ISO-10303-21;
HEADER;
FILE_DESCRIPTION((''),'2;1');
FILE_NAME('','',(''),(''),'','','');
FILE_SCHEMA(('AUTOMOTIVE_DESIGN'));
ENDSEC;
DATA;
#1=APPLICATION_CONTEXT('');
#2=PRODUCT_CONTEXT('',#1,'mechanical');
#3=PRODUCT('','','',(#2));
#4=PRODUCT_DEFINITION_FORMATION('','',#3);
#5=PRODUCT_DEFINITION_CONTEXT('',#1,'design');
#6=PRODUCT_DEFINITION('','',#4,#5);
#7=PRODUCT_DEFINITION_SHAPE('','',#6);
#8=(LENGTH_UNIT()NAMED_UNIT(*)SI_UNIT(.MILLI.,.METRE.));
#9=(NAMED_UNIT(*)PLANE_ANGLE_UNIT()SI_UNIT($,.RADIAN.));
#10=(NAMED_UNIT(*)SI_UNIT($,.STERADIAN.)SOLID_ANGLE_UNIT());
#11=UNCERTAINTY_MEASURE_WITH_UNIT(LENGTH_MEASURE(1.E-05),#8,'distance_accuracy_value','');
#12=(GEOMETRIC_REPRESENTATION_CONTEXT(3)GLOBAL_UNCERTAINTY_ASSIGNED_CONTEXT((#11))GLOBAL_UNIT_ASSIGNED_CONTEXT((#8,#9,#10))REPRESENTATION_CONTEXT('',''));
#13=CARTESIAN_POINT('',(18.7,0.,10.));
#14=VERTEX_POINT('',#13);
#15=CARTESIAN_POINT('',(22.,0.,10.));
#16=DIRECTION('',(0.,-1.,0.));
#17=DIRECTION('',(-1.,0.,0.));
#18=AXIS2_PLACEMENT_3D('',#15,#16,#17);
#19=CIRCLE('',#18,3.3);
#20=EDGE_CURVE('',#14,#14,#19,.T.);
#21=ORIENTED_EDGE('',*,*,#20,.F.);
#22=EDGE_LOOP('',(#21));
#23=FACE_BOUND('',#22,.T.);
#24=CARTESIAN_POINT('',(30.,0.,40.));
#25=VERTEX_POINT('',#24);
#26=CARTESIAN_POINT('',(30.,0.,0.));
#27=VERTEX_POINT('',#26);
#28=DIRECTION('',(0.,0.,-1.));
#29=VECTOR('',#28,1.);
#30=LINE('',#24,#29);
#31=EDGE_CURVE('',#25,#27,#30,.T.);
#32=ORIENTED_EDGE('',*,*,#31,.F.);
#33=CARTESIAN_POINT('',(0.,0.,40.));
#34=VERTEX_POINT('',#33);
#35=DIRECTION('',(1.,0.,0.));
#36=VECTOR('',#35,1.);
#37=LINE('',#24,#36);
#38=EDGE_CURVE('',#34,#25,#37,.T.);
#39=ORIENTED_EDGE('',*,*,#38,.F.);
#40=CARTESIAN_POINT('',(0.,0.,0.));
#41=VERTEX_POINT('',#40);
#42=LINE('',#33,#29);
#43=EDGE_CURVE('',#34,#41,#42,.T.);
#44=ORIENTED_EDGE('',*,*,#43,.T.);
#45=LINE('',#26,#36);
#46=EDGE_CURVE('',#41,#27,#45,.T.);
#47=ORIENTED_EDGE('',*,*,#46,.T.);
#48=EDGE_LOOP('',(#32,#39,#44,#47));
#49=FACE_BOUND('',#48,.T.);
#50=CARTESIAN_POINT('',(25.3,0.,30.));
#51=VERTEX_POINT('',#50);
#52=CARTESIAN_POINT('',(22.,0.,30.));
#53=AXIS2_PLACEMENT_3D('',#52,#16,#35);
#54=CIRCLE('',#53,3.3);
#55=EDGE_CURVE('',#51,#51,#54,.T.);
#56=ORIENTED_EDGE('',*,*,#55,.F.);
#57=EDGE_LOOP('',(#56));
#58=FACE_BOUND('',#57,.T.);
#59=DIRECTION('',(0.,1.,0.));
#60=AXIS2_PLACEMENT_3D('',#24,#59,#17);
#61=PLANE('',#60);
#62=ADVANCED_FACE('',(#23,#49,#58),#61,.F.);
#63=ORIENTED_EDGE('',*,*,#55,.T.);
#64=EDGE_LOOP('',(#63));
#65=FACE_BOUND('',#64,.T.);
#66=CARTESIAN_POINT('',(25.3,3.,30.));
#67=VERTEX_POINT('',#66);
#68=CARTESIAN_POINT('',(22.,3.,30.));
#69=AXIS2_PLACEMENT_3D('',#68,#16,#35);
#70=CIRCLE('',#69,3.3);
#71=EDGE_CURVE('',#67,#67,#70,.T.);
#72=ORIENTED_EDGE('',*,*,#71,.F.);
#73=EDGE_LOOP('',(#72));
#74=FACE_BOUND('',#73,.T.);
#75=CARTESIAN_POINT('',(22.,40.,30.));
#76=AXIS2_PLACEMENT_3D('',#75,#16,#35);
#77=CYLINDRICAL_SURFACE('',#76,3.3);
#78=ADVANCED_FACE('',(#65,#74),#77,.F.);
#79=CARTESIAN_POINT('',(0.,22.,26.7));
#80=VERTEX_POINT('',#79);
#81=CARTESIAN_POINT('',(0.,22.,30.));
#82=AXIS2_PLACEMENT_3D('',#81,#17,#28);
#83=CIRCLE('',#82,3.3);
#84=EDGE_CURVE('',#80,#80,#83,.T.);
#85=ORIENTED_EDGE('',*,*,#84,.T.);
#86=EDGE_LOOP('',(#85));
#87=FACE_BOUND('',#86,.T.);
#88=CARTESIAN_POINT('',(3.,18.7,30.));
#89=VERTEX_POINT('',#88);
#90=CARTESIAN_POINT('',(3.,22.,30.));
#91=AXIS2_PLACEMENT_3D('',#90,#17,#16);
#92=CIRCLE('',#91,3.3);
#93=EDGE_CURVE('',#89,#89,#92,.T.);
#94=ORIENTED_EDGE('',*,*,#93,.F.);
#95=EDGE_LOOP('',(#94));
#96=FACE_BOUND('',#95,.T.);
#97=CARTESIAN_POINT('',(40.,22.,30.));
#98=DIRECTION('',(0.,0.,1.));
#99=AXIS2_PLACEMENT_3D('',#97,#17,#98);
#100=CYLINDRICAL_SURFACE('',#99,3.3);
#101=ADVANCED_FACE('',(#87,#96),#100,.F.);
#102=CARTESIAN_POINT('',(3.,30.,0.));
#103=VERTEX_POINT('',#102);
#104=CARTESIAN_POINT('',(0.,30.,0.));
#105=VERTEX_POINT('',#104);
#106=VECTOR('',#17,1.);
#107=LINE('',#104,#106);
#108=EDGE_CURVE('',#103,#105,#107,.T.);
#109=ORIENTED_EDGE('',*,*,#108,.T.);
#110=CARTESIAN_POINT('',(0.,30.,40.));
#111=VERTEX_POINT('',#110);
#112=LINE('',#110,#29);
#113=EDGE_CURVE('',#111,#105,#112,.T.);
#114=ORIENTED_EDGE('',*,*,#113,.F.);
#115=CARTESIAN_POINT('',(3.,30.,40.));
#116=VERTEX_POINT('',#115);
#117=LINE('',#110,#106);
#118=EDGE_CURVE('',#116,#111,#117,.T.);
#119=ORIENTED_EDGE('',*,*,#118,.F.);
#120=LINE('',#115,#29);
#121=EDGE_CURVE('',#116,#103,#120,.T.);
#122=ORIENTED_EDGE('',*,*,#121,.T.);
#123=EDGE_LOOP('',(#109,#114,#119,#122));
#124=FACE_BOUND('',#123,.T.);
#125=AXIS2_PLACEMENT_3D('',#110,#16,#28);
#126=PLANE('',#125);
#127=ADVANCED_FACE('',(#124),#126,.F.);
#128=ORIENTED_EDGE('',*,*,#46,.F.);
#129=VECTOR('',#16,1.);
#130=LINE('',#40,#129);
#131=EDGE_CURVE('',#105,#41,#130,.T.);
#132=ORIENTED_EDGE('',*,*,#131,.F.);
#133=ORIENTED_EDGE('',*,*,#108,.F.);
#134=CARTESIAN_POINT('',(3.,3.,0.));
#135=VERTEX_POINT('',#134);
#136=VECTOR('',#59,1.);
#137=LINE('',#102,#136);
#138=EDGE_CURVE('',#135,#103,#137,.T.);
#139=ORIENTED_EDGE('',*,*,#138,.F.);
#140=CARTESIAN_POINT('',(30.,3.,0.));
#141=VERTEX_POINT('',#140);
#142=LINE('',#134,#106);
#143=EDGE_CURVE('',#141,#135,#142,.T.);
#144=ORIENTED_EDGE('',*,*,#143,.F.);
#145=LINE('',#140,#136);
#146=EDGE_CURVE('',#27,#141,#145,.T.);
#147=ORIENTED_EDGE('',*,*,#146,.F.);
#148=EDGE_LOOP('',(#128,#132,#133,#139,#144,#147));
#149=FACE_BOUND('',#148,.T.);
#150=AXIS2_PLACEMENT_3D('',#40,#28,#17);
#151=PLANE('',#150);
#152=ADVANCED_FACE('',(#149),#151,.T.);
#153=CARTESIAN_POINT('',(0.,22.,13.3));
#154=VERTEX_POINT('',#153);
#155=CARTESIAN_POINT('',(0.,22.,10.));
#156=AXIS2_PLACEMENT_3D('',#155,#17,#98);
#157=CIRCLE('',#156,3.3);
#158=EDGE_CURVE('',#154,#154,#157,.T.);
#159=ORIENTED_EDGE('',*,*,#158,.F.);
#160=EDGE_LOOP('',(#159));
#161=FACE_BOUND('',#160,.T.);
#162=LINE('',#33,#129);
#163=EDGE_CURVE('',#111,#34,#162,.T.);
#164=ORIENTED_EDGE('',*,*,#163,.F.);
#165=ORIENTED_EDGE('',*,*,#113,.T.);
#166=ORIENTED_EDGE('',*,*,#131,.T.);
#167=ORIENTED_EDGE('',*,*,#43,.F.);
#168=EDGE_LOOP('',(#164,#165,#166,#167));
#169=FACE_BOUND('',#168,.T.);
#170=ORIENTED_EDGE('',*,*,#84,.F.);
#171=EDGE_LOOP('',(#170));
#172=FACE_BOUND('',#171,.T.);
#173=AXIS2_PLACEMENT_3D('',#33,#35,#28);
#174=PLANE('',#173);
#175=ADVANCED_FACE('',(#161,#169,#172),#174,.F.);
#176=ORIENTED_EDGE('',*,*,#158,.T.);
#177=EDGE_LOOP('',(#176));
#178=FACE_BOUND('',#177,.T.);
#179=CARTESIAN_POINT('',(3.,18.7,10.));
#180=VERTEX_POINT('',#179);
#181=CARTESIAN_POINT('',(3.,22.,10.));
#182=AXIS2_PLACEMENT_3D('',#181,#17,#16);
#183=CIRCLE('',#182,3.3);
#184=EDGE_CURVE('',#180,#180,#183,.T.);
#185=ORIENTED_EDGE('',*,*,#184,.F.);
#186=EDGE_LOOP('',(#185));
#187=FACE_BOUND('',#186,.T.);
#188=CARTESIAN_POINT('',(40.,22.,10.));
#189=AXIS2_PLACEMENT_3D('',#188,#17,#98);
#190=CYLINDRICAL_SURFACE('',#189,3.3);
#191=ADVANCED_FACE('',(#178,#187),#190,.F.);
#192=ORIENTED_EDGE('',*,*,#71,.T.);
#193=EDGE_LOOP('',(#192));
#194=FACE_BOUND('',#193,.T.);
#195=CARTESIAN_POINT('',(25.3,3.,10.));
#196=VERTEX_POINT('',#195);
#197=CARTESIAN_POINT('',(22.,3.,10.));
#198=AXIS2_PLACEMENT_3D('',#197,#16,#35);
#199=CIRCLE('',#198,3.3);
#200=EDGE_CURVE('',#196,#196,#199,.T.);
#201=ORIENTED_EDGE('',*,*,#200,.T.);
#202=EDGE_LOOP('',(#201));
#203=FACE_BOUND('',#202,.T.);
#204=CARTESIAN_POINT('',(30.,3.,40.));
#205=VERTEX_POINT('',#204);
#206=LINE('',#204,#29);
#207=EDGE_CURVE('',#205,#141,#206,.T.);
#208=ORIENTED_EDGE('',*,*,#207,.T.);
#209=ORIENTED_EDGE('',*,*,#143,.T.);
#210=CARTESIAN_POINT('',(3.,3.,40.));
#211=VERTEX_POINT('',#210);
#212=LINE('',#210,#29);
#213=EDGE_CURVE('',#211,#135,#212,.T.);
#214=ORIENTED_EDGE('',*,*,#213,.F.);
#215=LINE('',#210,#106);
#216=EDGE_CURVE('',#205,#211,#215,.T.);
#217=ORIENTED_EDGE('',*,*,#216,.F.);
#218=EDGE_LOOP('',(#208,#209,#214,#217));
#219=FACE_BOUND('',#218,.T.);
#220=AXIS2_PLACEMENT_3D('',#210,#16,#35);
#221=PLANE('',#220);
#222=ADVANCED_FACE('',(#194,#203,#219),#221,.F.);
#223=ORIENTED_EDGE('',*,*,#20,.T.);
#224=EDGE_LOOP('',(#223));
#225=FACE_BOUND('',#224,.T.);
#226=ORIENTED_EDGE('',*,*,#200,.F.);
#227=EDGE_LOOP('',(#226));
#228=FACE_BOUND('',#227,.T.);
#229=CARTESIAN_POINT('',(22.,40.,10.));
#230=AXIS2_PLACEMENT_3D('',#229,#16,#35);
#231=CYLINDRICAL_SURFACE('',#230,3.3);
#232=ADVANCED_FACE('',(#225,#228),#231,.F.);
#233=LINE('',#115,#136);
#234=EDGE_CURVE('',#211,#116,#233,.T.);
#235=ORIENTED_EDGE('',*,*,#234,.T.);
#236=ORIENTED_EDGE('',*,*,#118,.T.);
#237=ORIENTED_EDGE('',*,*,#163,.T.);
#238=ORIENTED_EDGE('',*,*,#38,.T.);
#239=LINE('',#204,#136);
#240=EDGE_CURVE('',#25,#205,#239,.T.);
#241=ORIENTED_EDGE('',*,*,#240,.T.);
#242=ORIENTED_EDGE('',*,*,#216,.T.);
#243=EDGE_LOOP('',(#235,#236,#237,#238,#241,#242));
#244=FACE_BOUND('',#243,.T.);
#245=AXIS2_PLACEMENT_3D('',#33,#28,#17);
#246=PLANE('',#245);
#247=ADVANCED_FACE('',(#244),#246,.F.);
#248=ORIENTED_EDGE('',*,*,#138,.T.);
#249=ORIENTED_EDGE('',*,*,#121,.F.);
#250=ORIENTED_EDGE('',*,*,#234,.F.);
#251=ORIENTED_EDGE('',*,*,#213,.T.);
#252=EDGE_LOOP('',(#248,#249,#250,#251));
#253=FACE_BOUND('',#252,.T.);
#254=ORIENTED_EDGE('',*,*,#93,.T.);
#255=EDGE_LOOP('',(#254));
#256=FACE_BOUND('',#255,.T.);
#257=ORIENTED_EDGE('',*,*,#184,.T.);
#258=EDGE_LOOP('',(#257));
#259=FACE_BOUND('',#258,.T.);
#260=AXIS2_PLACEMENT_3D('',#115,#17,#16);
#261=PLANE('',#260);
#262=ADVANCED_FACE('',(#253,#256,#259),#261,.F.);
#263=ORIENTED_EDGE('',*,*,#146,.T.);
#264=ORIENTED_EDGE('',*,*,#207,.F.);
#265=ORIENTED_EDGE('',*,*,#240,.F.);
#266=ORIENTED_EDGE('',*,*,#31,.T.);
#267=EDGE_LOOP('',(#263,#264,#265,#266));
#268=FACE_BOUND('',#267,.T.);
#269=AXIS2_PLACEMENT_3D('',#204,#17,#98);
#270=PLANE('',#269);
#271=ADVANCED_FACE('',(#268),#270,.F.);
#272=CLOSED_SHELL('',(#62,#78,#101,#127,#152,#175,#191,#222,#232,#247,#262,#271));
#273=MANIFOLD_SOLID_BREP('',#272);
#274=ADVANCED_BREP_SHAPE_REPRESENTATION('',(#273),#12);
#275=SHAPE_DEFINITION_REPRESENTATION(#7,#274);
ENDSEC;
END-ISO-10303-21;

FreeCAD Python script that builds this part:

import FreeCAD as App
import Part
import Sketcher

V = App.Vector

doc = App.newDocument("Part")
params = doc.addObject("Spreadsheet::Sheet", "Params")
for row, (alias, value) in enumerate([
    ("sketch1_width", "30 mm"),
    ("sketch1_width2", "27 mm"),
    ("pad1_length", "40 mm"),
    ("sketch2_diameter", "6.6 mm"),
    ("pocket1_length", "40 mm"),
    ("sketch3_diameter", "6.6 mm"),
    ("pocket2_length", "40 mm"),
], start=1):
    params.set(f"A{row}", alias)
    params.set(f"B{row}", "=" + value)
    params.setAlias(f"B{row}", alias)

body = doc.addObject("PartDesign::Body", "Body")

# Sketch on XY plane
sketch1 = body.newObject("Sketcher::SketchObject", "Sketch")
sketch1.AttachmentSupport = (doc.getObject("XY_Plane"), [""])
sketch1.MapMode = "FlatFace"
sketch1.addGeometry([
    Part.LineSegment(V(0, 30, 0), V(0, 0, 0)),  # 0
    Part.LineSegment(V(0, 0, 0), V(30, 0, 0)),  # 1
    Part.LineSegment(V(30, 0, 0), V(30, 3, 0)),  # 2
    Part.LineSegment(V(30, 3, 0), V(3, 3, 0)),  # 3
    Part.LineSegment(V(3, 3, 0), V(3, 30, 0)),  # 4
    Part.LineSegment(V(3, 30, 0), V(0, 30, 0)),  # 5
], False)
sketch1.addConstraint([
    Sketcher.Constraint("Coincident", 0, 2, 1, 1),
    Sketcher.Constraint("Coincident", 1, 2, 2, 1),
    Sketcher.Constraint("Coincident", 2, 2, 3, 1),
    Sketcher.Constraint("Coincident", 3, 2, 4, 1),
    Sketcher.Constraint("Coincident", 4, 2, 5, 1),
    Sketcher.Constraint("Coincident", 5, 2, 0, 1),
    Sketcher.Constraint("Vertical", 0),
    Sketcher.Constraint("Horizontal", 1),
    Sketcher.Constraint("Vertical", 2),
    Sketcher.Constraint("Horizontal", 3),
    Sketcher.Constraint("Vertical", 4),
    Sketcher.Constraint("Horizontal", 5),
    Sketcher.Constraint("Coincident", 0, 2, -1, 1),
    Sketcher.Constraint("Equal", 1, 0),
    Sketcher.Constraint("Equal", 5, 2),
    Sketcher.Constraint("DistanceX", 1, 1, 1, 2, 30.0),
    Sketcher.Constraint("DistanceX", 3, 2, 3, 1, 27.0),
])
sketch1.setExpression("Constraints[15]", "Params.sketch1_width")
sketch1.setExpression("Constraints[16]", "Params.sketch1_width2")
pad1 = body.newObject("PartDesign::Pad", "Pad")
pad1.Profile = sketch1
pad1.setExpression("Length", "Params.pad1_length")

# Sketch on YZ plane
sketch2 = body.newObject("Sketcher::SketchObject", "Sketch001")
sketch2.AttachmentSupport = (doc.getObject("YZ_Plane"), [""])
sketch2.MapMode = "FlatFace"
sketch2.addGeometry([
    Part.Circle(V(22, 10, 0), V(0, 0, 1), 3.3),
    Part.Circle(V(22, 30, 0), V(0, 0, 1), 3.3),
], False)
sketch2.addConstraint([
    Sketcher.Constraint("Equal", 0, 1),
    Sketcher.Constraint("Vertical", 0, 3, 1, 3),
    Sketcher.Constraint("Diameter", 0, 6.6),
    Sketcher.Constraint("DistanceX", -1, 1, 0, 3, 22.0),
    Sketcher.Constraint("DistanceY", -1, 1, 0, 3, 10.0),
    Sketcher.Constraint("DistanceY", -1, 1, 1, 3, 30.0),
])
sketch2.setExpression("Constraints[2]", "Params.sketch2_diameter")
pocket1 = body.newObject("PartDesign::Pocket", "Pocket")
pocket1.Profile = sketch2
pocket1.setExpression("Length", "Params.pocket1_length")
pocket1.Reversed = True

# Sketch on XZ plane
sketch3 = body.newObject("Sketcher::SketchObject", "Sketch002")
sketch3.AttachmentSupport = (doc.getObject("XZ_Plane"), [""])
sketch3.MapMode = "FlatFace"
sketch3.addGeometry([
    Part.Circle(V(22, 30, 0), V(0, 0, 1), 3.3),
    Part.Circle(V(22, 10, 0), V(0, 0, 1), 3.3),
], False)
sketch3.addConstraint([
    Sketcher.Constraint("Equal", 0, 1),
    Sketcher.Constraint("Vertical", 0, 3, 1, 3),
    Sketcher.Constraint("Diameter", 0, 6.6),
    Sketcher.Constraint("DistanceX", -1, 1, 0, 3, 22.0),
    Sketcher.Constraint("DistanceY", -1, 1, 0, 3, 30.0),
    Sketcher.Constraint("DistanceY", -1, 1, 1, 3, 10.0),
])
sketch3.setExpression("Constraints[2]", "Params.sketch3_diameter")
pocket2 = body.newObject("PartDesign::Pocket", "Pocket001")
pocket2.Profile = sketch3
pocket2.setExpression("Length", "Params.pocket2_length")

doc.recompute()
